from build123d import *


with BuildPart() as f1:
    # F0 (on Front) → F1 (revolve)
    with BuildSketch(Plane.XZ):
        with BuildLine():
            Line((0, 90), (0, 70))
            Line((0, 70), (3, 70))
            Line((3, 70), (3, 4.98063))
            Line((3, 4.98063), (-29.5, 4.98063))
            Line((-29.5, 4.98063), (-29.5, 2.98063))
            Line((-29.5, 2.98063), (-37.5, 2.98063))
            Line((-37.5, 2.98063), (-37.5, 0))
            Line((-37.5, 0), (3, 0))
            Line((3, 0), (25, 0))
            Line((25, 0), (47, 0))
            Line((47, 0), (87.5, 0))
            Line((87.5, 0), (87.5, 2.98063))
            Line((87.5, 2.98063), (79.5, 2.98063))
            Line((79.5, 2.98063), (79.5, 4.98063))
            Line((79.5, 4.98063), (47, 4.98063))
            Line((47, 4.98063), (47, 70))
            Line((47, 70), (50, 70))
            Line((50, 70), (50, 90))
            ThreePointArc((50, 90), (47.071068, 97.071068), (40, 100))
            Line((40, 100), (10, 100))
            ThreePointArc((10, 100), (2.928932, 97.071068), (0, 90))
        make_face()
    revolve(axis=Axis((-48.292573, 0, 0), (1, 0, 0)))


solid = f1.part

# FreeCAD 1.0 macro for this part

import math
import FreeCAD as App
import Part
import Sketcher
from FreeCAD import Vector
Q = App.Units.Quantity

doc = App.newDocument("Part")
body = doc.addObject("PartDesign::Body", "Body")

sketch1 = body.newObject("Sketcher::SketchObject", "Sketch")
sketch1.AttachmentSupport = (doc.getObject("XZ_Plane"), [""])
sketch1.MapMode = "FlatFace"
sketch1.addGeometry([
    Part.LineSegment(Vector(0, 90, 0), Vector(0, 70, 0)),
    Part.LineSegment(Vector(0, 70, 0), Vector(3, 70, 0)),
    Part.LineSegment(Vector(3, 70, 0), Vector(3, 4.98063, 0)),
    Part.LineSegment(Vector(3, 4.98063, 0), Vector(-29.5, 4.98063, 0)),
    Part.LineSegment(Vector(-29.5, 4.98063, 0), Vector(-29.5, 2.98063, 0)),
    Part.LineSegment(Vector(-29.5, 2.98063, 0), Vector(-37.5, 2.98063, 0)),
    Part.LineSegment(Vector(-37.5, 2.98063, 0), Vector(-37.5, 0, 0)),
    Part.LineSegment(Vector(-37.5, 0, 0), Vector(87.5, 0, 0)),
    Part.LineSegment(Vector(87.5, 0, 0), Vector(87.5, 2.98063, 0)),
    Part.LineSegment(Vector(87.5, 2.98063, 0), Vector(79.5, 2.98063, 0)),
    Part.LineSegment(Vector(79.5, 2.98063, 0), Vector(79.5, 4.98063, 0)),
    Part.LineSegment(Vector(79.5, 4.98063, 0), Vector(47, 4.98063, 0)),
    Part.LineSegment(Vector(47, 4.98063, 0), Vector(47, 70, 0)),
    Part.LineSegment(Vector(47, 70, 0), Vector(50, 70, 0)),
    Part.LineSegment(Vector(50, 70, 0), Vector(50, 90, 0)),
    Part.ArcOfCircle(Part.Circle(Vector(40.000001, 90.000001, 0), Vector(0, 0, 1), 9.999999), math.radians(-0.000004), math.radians(90.000004)),
    Part.LineSegment(Vector(40, 100, 0), Vector(10, 100, 0)),
    Part.ArcOfCircle(Part.Circle(Vector(9.999999, 90.000001, 0), Vector(0, 0, 1), 9.999999), math.radians(89.999996), math.radians(180.000004)),
], False)
sketch1.addConstraint([
    Sketcher.Constraint("Coincident", 0, 2, 1, 1),
    Sketcher.Constraint("Coincident", 1, 2, 2, 1),
    Sketcher.Constraint("Coincident", 2, 2, 3, 1),
    Sketcher.Constraint("Coincident", 3, 2, 4, 1),
    Sketcher.Constraint("Coincident", 4, 2, 5, 1),
    Sketcher.Constraint("Coincident", 5, 2, 6, 1),
    Sketcher.Constraint("Coincident", 6, 2, 7, 1),
    Sketcher.Constraint("Coincident", 7, 2, 8, 1),
    Sketcher.Constraint("Coincident", 8, 2, 9, 1),
    Sketcher.Constraint("Coincident", 9, 2, 10, 1),
    Sketcher.Constraint("Coincident", 10, 2, 11, 1),
    Sketcher.Constraint("Coincident", 11, 2, 12, 1),
    Sketcher.Constraint("Coincident", 12, 2, 13, 1),
    Sketcher.Constraint("Coincident", 13, 2, 14, 1),
    Sketcher.Constraint("Tangent", 14, 2, 15, 1),
    Sketcher.Constraint("Tangent", 15, 2, 16, 1),
    Sketcher.Constraint("Tangent", 16, 2, 17, 1),
    Sketcher.Constraint("Tangent", 17, 2, 0, 1),
    Sketcher.Constraint("Vertical", 0),
    Sketcher.Constraint("Horizontal", 1),
    Sketcher.Constraint("Vertical", 2),
    Sketcher.Constraint("Horizontal", 3),
    Sketcher.Constraint("Vertical", 4),
    Sketcher.Constraint("Horizontal", 5),
    Sketcher.Constraint("Vertical", 6),
    Sketcher.Constraint("Horizontal", 7),
    Sketcher.Constraint("Vertical", 8),
    Sketcher.Constraint("Horizontal", 9),
    Sketcher.Constraint("Vertical", 10),
    Sketcher.Constraint("Horizontal", 11),
    Sketcher.Constraint("Vertical", 12),
    Sketcher.Constraint("Horizontal", 13),
    Sketcher.Constraint("Vertical", 14),
    Sketcher.Constraint("Horizontal", 16),
    Sketcher.Constraint("Equal", 15, 17),
    Sketcher.Constraint("PointOnObject", 0, 2, -2),
    Sketcher.Constraint("PointOnObject", 6, 2, -1),
    Sketcher.Constraint("Horizontal", 5, 2, 8, 2),
    Sketcher.Constraint("Horizontal", 3, 2, 10, 2),
    Sketcher.Constraint("Horizontal", 1, 2, 12, 2),
    Sketcher.Constraint("Equal", 5, 9),
    Sketcher.Constraint("Equal", 3, 11),
    Sketcher.Constraint("Equal", 1, 13),
    Sketcher.Constraint("Radius", 15, Q("9.999999 mm")),
    Sketcher.Constraint("DistanceX", 1, 1, 1, 2, Q("3 mm")),
    Sketcher.Constraint("DistanceX", 5, 2, 5, 1, Q("8 mm")),
    Sketcher.Constraint("DistanceX", 7, 1, 7, 2, Q("125 mm")),
    Sketcher.Constraint("DistanceX", 16, 2, 16, 1, Q("30 mm")),
    Sketcher.Constraint("DistanceY", 0, 2, 0, 1, Q("20 mm")),
    Sketcher.Constraint("DistanceY", 4, 2, 4, 1, Q("2 mm")),
    Sketcher.Constraint("DistanceY", -1, 1, 15, 3, Q("90.000001 mm")),
    Sketcher.Constraint("DistanceY", 2, 2, 2, 1, Q("65.01937 mm")),
])
revolution = body.newObject("PartDesign::Revolution", "Revolution")
revolution.Profile = sketch1
revolution.ReferenceAxis = (sketch1, ["H_Axis"])
revolution.Angle = 360

doc.recompute()
